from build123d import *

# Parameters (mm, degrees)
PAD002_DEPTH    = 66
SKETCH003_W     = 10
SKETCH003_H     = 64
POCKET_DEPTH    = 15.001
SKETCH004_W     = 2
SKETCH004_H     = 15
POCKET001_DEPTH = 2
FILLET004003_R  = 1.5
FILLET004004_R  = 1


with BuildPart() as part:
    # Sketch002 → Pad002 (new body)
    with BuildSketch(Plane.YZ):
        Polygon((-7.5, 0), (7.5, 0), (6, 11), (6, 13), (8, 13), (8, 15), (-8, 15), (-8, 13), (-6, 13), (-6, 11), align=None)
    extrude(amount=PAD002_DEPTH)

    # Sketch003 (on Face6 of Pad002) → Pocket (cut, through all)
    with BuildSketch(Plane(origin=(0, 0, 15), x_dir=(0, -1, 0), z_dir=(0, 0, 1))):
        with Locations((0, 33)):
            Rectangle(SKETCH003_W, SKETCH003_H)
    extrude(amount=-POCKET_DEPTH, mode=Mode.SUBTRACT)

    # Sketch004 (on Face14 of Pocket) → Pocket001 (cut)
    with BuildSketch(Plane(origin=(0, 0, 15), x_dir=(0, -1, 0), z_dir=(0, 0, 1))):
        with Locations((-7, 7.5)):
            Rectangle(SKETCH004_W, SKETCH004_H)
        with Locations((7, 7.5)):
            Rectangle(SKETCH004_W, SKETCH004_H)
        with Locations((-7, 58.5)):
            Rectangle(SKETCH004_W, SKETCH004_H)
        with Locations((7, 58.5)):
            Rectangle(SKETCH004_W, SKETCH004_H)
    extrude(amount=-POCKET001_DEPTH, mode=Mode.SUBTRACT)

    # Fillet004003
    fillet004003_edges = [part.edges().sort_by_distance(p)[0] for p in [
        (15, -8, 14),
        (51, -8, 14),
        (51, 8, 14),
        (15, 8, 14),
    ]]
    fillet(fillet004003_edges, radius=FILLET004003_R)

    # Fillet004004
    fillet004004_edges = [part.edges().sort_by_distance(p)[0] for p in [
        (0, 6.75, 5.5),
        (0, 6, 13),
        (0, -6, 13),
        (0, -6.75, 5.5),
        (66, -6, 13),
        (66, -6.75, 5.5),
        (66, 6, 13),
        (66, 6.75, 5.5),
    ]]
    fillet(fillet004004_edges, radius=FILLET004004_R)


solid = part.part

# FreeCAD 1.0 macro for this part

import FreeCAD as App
import Part
import Sketcher


def edges_at(feature, points):
    """Names of the edges that pass closest to the given points."""
    edges = feature.Shape.Edges
    near = lambda p: min(range(len(edges)), key=lambda i: edges[i].distToShape(Part.Vertex(*p))[0])
    return sorted({f"Edge{near(p) + 1}" for p in points})

doc = App.newDocument("Part")
body = doc.addObject("PartDesign::Body", "Body")

# Sketch on YZ plane
sketch1 = body.newObject("Sketcher::SketchObject", "Sketch")
sketch1.AttachmentSupport = (doc.getObject("YZ_Plane"), [""])
sketch1.MapMode = "FlatFace"
sketch1.addGeometry(Part.LineSegment(App.Vector(-7.5, 0, 0), App.Vector(7.5, 0, 0)), False)
sketch1.addGeometry(Part.LineSegment(App.Vector(7.5, 0, 0), App.Vector(6, 11, 0)), False)
sketch1.addGeometry(Part.LineSegment(App.Vector(6, 11, 0), App.Vector(6, 13, 0)), False)
sketch1.addGeometry(Part.LineSegment(App.Vector(6, 13, 0), App.Vector(8, 13, 0)), False)
sketch1.addGeometry(Part.LineSegment(App.Vector(8, 13, 0), App.Vector(8, 15, 0)), False)
sketch1.addGeometry(Part.LineSegment(App.Vector(8, 15, 0), App.Vector(-8, 15, 0)), False)
sketch1.addGeometry(Part.LineSegment(App.Vector(-8, 15, 0), App.Vector(-8, 13, 0)), False)
sketch1.addGeometry(Part.LineSegment(App.Vector(-8, 13, 0), App.Vector(-6, 13, 0)), False)
sketch1.addGeometry(Part.LineSegment(App.Vector(-6, 13, 0), App.Vector(-6, 11, 0)), False)
sketch1.addGeometry(Part.LineSegment(App.Vector(-6, 11, 0), App.Vector(-7.5, 0, 0)), False)
sketch1.addConstraint(Sketcher.Constraint("Coincident", 0, 2, 1, 1))
sketch1.addConstraint(Sketcher.Constraint("Coincident", 1, 2, 2, 1))
sketch1.addConstraint(Sketcher.Constraint("Coincident", 2, 2, 3, 1))
sketch1.addConstraint(Sketcher.Constraint("Coincident", 3, 2, 4, 1))
sketch1.addConstraint(Sketcher.Constraint("Coincident", 4, 2, 5, 1))
sketch1.addConstraint(Sketcher.Constraint("Coincident", 5, 2, 6, 1))
sketch1.addConstraint(Sketcher.Constraint("Coincident", 6, 2, 7, 1))
sketch1.addConstraint(Sketcher.Constraint("Coincident", 7, 2, 8, 1))
sketch1.addConstraint(Sketcher.Constraint("Coincident", 8, 2, 9, 1))
sketch1.addConstraint(Sketcher.Constraint("Coincident", 9, 2, 0, 1))
sketch1.addConstraint(Sketcher.Constraint("Horizontal", 0))
sketch1.addConstraint(Sketcher.Constraint("Vertical", 2))
sketch1.addConstraint(Sketcher.Constraint("Horizontal", 3))
sketch1.addConstraint(Sketcher.Constraint("Vertical", 4))
sketch1.addConstraint(Sketcher.Constraint("Horizontal", 5))
sketch1.addConstraint(Sketcher.Constraint("Vertical", 6))
sketch1.addConstraint(Sketcher.Constraint("Horizontal", 7))
sketch1.addConstraint(Sketcher.Constraint("Vertical", 8))
sketch1.addConstraint(Sketcher.Constraint("Symmetric", 0, 2, 9, 2, -1, 1))
sketch1.addConstraint(Sketcher.Constraint("Symmetric", 3, 2, 6, 2, -2))
sketch1.addConstraint(Sketcher.Constraint("Symmetric", 1, 2, 8, 2, -2))
sketch1.addConstraint(Sketcher.Constraint("Equal", 7, 2))
sketch1.addConstraint(Sketcher.Constraint("Equal", 2, 4))
sketch1.addConstraint(Sketcher.Constraint("DistanceX", 0, 1, 0, 2, 15.0))
sketch1.addConstraint(Sketcher.Constraint("DistanceX", 3, 1, 3, 2, 2.0))
sketch1.addConstraint(Sketcher.Constraint("DistanceX", 5, 2, 5, 1, 16.0))
sketch1.addConstraint(Sketcher.Constraint("DistanceY", -1, 1, 1, 2, 11.0))
pad1 = body.newObject("PartDesign::Pad", "Pad")
pad1.Profile = sketch1
pad1.Length = 66

# Sketch on XY plane
sketch2 = body.newObject("Sketcher::SketchObject", "Sketch001")
sketch2.AttachmentSupport = (doc.getObject("XY_Plane"), [""])
sketch2.MapMode = "FlatFace"
sketch2.AttachmentOffset = App.Placement(App.Vector(0, 0, 15), App.Rotation())
sketch2.addGeometry(Part.LineSegment(App.Vector(65, 5, 0), App.Vector(1, 5, 0)), False)
sketch2.addGeometry(Part.LineSegment(App.Vector(1, 5, 0), App.Vector(1, -5, 0)), False)
sketch2.addGeometry(Part.LineSegment(App.Vector(1, -5, 0), App.Vector(65, -5, 0)), False)
sketch2.addGeometry(Part.LineSegment(App.Vector(65, -5, 0), App.Vector(65, 5, 0)), False)
sketch2.addConstraint(Sketcher.Constraint("Coincident", 0, 2, 1, 1))
sketch2.addConstraint(Sketcher.Constraint("Coincident", 1, 2, 2, 1))
sketch2.addConstraint(Sketcher.Constraint("Coincident", 2, 2, 3, 1))
sketch2.addConstraint(Sketcher.Constraint("Coincident", 3, 2, 0, 1))
sketch2.addConstraint(Sketcher.Constraint("Horizontal", 0))
sketch2.addConstraint(Sketcher.Constraint("Vertical", 1))
sketch2.addConstraint(Sketcher.Constraint("Horizontal", 2))
sketch2.addConstraint(Sketcher.Constraint("Vertical", 3))
sketch2.addConstraint(Sketcher.Constraint("DistanceX", 0, 2, 0, 1, 64.0))
sketch2.addConstraint(Sketcher.Constraint("DistanceY", 1, 2, 1, 1, 10.0))
sketch2.addConstraint(Sketcher.Constraint("DistanceX", -1, 1, 0, 2, 1.0))
sketch2.addConstraint(Sketcher.Constraint("DistanceY", -1, 1, 0, 2, 5.0))
pocket1 = body.newObject("PartDesign::Pocket", "Pocket")
pocket1.Profile = sketch2
pocket1.Type = "ThroughAll"

# Sketch on XY plane
sketch3 = body.newObject("Sketcher::SketchObject", "Sketch002")
sketch3.AttachmentSupport = (doc.getObject("XY_Plane"), [""])
sketch3.MapMode = "FlatFace"
sketch3.AttachmentOffset = App.Placement(App.Vector(0, 0, 15), App.Rotation())
sketch3.addGeometry(Part.LineSegment(App.Vector(15, 8, 0), App.Vector(0, 8, 0)), False)
sketch3.addGeometry(Part.LineSegment(App.Vector(0, 8, 0), App.Vector(0, 6, 0)), False)
sketch3.addGeometry(Part.LineSegment(App.Vector(0, 6, 0), App.Vector(15, 6, 0)), False)
sketch3.addGeometry(Part.LineSegment(App.Vector(15, 6, 0), App.Vector(15, 8, 0)), False)
sketch3.addGeometry(Part.LineSegment(App.Vector(15, -6, 0), App.Vector(0, -6, 0)), False)
sketch3.addGeometry(Part.LineSegment(App.Vector(0, -6, 0), App.Vector(0, -8, 0)), False)
sketch3.addGeometry(Part.LineSegment(App.Vector(0, -8, 0), App.Vector(15, -8, 0)), False)
sketch3.addGeometry(Part.LineSegment(App.Vector(15, -8, 0), App.Vector(15, -6, 0)), False)
sketch3.addGeometry(Part.LineSegment(App.Vector(66, 8, 0), App.Vector(51, 8, 0)), False)
sketch3.addGeometry(Part.LineSegment(App.Vector(51, 8, 0), App.Vector(51, 6, 0)), False)
sketch3.addGeometry(Part.LineSegment(App.Vector(51, 6, 0), App.Vector(66, 6, 0)), False)
sketch3.addGeometry(Part.LineSegment(App.Vector(66, 6, 0), App.Vector(66, 8, 0)), False)
sketch3.addGeometry(Part.LineSegment(App.Vector(66, -6, 0), App.Vector(51, -6, 0)), False)
sketch3.addGeometry(Part.LineSegment(App.Vector(51, -6, 0), App.Vector(51, -8, 0)), False)
sketch3.addGeometry(Part.LineSegment(App.Vector(51, -8, 0), App.Vector(66, -8, 0)), False)
sketch3.addGeometry(Part.LineSegment(App.Vector(66, -8, 0), App.Vector(66, -6, 0)), False)
sketch3.addConstraint(Sketcher.Constraint("Coincident", 0, 2, 1, 1))
sketch3.addConstraint(Sketcher.Constraint("Coincident", 1, 2, 2, 1))
sketch3.addConstraint(Sketcher.Constraint("Coincident", 2, 2, 3, 1))
sketch3.addConstraint(Sketcher.Constraint("Coincident", 3, 2, 0, 1))
sketch3.addConstraint(Sketcher.Constraint("Coincident", 4, 2, 5, 1))
sketch3.addConstraint(Sketcher.Constraint("Coincident", 5, 2, 6, 1))
sketch3.addConstraint(Sketcher.Constraint("Coincident", 6, 2, 7, 1))
sketch3.addConstraint(Sketcher.Constraint("Coincident", 7, 2, 4, 1))
sketch3.addConstraint(Sketcher.Constraint("Coincident", 8, 2, 9, 1))
sketch3.addConstraint(Sketcher.Constraint("Coincident", 9, 2, 10, 1))
sketch3.addConstraint(Sketcher.Constraint("Coincident", 10, 2, 11, 1))
sketch3.addConstraint(Sketcher.Constraint("Coincident", 11, 2, 8, 1))
sketch3.addConstraint(Sketcher.Constraint("Coincident", 12, 2, 13, 1))
sketch3.addConstraint(Sketcher.Constraint("Coincident", 13, 2, 14, 1))
sketch3.addConstraint(Sketcher.Constraint("Coincident", 14, 2, 15, 1))
sketch3.addConstraint(Sketcher.Constraint("Coincident", 15, 2, 12, 1))
sketch3.addConstraint(Sketcher.Constraint("Horizontal", 0))
sketch3.addConstraint(Sketcher.Constraint("Vertical", 1))
sketch3.addConstraint(Sketcher.Constraint("Horizontal", 2))
sketch3.addConstraint(Sketcher.Constraint("Vertical", 3))
sketch3.addConstraint(Sketcher.Constraint("Horizontal", 4))
sketch3.addConstraint(Sketcher.Constraint("Vertical", 5))
sketch3.addConstraint(Sketcher.Constraint("Horizontal", 6))
sketch3.addConstraint(Sketcher.Constraint("Vertical", 7))
sketch3.addConstraint(Sketcher.Constraint("Horizontal", 8))
sketch3.addConstraint(Sketcher.Constraint("Vertical", 9))
sketch3.addConstraint(Sketcher.Constraint("Horizontal", 10))
sketch3.addConstraint(Sketcher.Constraint("Vertical", 11))
sketch3.addConstraint(Sketcher.Constraint("Horizontal", 12))
sketch3.addConstraint(Sketcher.Constraint("Vertical", 13))
sketch3.addConstraint(Sketcher.Constraint("Horizontal", 14))
sketch3.addConstraint(Sketcher.Constraint("Vertical", 15))
sketch3.addConstraint(Sketcher.Constraint("Symmetric", 1, 2, 4, 2, -1, 1))
sketch3.addConstraint(Sketcher.Constraint("Symmetric", 0, 2, 5, 2, -1))
sketch3.addConstraint(Sketcher.Constraint("Symmetric", 9, 2, 12, 2, -1))
sketch3.addConstraint(Sketcher.Constraint("Symmetric", 11, 2, 14, 2, -1))
sketch3.addConstraint(Sketcher.Constraint("Horizontal", 3, 2, 8, 2))
sketch3.addConstraint(Sketcher.Constraint("Horizontal", 2, 2, 9, 2))
sketch3.addConstraint(Sketcher.Constraint("Vertical", 3, 2, 6, 2))
sketch3.addConstraint(Sketcher.Constraint("Equal", 6, 8))
sketch3.addConstraint(Sketcher.Constraint("DistanceX", 0, 2, 0, 1, 15.0))
sketch3.addConstraint(Sketcher.Constraint("DistanceY", 1, 2, 1, 1, 2.0))
sketch3.addConstraint(Sketcher.Constraint("DistanceY", -1, 1, 0, 2, 8.0))
sketch3.addConstraint(Sketcher.Constraint("DistanceX", -1, 1, 8, 2, 51.0))
pocket2 = body.newObject("PartDesign::Pocket", "Pocket001")
pocket2.Profile = sketch3
pocket2.Length = 2
doc.recompute()

fillet = body.newObject("PartDesign::Fillet", "Fillet")
fillet.Base = (pocket2, edges_at(pocket2, [
    (15, -8, 14),
    (51, -8, 14),
    (51, 8, 14),
    (15, 8, 14),
]))
fillet.Radius = 1.5
doc.recompute()

fillet2 = body.newObject("PartDesign::Fillet", "Fillet001")
fillet2.Base = (fillet, edges_at(fillet, [
    (0, 6.75, 5.5),
    (0, 6, 13),
    (0, -6, 13),
    (0, -6.75, 5.5),
    (66, -6, 13),
    (66, -6.75, 5.5),
    (66, 6, 13),
    (66, 6.75, 5.5),
]))
fillet2.Radius = 1

doc.recompute()
